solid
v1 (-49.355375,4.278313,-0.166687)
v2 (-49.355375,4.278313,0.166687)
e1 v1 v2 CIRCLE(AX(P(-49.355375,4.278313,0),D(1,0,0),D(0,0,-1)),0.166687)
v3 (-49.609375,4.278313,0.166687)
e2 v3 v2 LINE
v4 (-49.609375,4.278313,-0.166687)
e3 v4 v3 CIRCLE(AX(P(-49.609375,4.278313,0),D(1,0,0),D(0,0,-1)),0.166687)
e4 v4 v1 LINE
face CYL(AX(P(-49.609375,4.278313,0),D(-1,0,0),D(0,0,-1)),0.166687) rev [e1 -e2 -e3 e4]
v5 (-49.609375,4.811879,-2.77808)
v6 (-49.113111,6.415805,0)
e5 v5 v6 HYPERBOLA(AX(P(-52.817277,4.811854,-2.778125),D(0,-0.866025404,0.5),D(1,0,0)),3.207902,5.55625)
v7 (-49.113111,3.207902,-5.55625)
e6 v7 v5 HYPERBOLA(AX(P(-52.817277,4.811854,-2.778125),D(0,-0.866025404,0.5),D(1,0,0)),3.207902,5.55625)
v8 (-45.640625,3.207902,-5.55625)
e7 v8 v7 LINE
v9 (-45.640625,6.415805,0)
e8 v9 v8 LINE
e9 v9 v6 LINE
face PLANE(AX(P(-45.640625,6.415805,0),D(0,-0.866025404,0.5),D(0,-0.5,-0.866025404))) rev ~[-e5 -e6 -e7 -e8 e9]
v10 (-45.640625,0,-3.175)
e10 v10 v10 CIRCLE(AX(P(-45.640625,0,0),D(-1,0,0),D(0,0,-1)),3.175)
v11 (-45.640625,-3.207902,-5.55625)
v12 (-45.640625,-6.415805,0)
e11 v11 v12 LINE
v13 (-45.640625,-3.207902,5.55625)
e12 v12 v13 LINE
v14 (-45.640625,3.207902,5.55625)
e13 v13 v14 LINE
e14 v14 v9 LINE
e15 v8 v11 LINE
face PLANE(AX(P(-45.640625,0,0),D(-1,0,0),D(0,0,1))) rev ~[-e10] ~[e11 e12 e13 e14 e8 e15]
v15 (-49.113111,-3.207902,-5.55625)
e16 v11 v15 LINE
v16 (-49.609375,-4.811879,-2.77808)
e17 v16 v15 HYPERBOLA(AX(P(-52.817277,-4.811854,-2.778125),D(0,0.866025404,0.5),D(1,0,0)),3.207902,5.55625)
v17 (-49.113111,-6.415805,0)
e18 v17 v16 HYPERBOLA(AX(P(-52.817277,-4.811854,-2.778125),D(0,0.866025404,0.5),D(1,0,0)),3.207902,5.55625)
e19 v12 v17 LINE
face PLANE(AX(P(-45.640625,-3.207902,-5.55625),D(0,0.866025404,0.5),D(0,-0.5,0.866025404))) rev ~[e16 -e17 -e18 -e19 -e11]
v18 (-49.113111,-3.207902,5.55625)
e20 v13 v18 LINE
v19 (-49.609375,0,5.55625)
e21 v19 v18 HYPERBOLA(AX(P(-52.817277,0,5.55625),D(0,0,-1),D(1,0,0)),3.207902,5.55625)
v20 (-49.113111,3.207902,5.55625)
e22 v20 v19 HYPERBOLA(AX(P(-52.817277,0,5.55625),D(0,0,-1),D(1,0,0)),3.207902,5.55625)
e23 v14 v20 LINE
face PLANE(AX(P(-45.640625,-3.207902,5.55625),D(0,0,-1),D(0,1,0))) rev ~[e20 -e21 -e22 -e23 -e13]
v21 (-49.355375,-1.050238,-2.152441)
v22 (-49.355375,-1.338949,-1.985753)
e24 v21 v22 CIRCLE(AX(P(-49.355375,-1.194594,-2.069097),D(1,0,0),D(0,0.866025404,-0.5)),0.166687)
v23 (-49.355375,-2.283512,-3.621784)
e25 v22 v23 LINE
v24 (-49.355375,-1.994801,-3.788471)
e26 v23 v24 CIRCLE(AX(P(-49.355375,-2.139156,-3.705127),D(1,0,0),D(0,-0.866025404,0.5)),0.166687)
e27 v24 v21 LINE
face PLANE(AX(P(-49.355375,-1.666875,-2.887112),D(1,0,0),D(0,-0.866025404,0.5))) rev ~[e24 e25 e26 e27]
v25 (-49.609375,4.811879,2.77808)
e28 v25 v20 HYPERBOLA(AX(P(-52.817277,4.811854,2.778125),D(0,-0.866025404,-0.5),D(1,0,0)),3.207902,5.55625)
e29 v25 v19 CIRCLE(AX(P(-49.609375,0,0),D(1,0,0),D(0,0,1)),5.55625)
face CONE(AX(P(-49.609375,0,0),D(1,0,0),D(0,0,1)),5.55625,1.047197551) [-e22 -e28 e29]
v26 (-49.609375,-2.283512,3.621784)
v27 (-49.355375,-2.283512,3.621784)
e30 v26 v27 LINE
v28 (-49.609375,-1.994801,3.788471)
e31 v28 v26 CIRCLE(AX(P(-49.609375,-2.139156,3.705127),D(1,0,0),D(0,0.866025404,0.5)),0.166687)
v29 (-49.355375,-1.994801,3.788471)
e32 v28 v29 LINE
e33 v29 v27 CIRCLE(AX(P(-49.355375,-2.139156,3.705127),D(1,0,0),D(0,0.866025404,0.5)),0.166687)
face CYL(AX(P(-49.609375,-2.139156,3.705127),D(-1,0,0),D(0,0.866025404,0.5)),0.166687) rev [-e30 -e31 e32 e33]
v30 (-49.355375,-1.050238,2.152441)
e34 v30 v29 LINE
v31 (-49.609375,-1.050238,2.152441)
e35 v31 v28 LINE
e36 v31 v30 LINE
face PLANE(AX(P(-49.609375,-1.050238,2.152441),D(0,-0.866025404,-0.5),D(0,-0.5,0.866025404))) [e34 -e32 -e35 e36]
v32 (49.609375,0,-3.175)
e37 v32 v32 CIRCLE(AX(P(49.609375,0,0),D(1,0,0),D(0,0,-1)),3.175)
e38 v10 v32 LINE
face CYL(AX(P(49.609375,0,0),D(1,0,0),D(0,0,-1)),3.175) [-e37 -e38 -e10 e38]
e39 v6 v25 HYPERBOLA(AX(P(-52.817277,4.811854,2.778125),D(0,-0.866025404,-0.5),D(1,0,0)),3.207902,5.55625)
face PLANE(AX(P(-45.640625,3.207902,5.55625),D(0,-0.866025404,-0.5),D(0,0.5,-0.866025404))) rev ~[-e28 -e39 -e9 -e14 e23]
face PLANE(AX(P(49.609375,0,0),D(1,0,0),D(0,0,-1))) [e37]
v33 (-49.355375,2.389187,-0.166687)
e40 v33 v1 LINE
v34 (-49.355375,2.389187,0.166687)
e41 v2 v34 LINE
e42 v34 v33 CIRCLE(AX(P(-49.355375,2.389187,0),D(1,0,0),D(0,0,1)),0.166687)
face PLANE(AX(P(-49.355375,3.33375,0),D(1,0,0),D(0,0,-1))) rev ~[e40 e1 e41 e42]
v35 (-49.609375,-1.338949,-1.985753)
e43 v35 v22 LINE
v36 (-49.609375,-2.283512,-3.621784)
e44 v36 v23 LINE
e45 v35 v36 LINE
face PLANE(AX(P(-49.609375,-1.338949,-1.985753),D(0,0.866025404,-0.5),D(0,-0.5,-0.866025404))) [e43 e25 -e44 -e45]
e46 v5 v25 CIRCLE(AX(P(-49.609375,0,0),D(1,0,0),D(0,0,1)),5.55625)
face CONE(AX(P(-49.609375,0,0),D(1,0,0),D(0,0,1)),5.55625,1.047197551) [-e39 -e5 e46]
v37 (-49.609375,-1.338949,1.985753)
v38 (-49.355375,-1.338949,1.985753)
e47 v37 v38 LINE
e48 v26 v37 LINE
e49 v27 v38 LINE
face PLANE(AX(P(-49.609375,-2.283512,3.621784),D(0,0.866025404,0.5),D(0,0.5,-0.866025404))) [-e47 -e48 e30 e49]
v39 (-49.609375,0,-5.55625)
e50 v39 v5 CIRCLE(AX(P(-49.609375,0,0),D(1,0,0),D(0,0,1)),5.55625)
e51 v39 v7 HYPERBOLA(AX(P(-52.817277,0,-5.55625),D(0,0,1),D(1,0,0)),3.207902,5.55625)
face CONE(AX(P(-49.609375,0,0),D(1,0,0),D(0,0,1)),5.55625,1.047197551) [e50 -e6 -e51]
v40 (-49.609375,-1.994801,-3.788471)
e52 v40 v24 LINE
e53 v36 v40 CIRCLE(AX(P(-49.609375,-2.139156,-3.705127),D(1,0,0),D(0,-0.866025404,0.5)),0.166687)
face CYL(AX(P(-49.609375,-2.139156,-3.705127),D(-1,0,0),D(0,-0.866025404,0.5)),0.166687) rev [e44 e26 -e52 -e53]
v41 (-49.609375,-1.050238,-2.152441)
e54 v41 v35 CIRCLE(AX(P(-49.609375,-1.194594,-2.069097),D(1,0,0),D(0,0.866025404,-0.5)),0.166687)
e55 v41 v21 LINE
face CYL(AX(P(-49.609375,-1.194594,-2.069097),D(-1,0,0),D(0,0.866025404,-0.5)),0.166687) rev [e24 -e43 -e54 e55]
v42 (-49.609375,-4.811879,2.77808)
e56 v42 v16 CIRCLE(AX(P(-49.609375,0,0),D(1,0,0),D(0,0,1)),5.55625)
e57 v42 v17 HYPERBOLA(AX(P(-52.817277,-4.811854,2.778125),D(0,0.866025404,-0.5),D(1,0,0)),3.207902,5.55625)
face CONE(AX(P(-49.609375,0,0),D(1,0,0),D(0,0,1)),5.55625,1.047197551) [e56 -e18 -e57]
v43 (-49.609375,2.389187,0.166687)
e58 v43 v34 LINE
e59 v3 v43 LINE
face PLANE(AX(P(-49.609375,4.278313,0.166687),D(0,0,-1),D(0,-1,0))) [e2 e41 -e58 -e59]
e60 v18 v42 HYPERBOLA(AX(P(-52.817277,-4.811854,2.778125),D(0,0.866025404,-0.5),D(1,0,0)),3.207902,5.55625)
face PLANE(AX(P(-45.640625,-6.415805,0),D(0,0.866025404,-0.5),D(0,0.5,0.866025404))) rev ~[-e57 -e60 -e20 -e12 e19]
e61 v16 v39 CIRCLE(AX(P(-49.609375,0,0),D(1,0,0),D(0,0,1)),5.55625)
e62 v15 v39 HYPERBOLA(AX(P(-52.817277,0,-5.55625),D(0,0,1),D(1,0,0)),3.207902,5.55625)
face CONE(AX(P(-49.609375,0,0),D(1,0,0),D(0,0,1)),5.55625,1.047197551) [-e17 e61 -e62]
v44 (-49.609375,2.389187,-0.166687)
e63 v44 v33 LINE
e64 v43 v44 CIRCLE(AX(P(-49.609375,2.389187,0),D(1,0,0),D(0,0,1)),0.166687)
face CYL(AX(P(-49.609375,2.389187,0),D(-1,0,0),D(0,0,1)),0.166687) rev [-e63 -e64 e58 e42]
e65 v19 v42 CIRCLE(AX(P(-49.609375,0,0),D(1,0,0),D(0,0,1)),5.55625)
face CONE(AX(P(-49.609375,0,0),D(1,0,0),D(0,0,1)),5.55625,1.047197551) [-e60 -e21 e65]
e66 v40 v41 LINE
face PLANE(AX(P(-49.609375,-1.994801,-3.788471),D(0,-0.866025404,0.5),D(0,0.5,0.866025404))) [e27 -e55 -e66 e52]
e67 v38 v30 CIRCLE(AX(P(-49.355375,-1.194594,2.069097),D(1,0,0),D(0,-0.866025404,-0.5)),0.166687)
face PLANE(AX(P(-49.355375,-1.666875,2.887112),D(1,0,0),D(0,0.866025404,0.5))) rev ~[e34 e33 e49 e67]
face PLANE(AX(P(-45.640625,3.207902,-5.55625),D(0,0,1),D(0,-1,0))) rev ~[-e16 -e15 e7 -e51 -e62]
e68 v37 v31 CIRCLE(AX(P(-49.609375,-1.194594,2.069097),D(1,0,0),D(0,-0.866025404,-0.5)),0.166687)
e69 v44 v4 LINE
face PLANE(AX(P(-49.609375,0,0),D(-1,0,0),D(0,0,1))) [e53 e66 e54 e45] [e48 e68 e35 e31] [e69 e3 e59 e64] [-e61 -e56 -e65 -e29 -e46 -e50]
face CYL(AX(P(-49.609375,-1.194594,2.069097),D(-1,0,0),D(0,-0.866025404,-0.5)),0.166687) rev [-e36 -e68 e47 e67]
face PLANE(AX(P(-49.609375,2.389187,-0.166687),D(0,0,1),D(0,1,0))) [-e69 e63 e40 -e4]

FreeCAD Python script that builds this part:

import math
import FreeCAD as App
import Part
import Sketcher
from FreeCAD import Vector
Q = App.Units.Quantity

doc = App.newDocument("Part")
body = doc.addObject("PartDesign::Body", "Body")

# Sketch on YZ plane
sketch1 = body.newObject("Sketcher::SketchObject", "Sketch")
sketch1.AttachmentSupport = (doc.getObject("YZ_Plane"), [""])
sketch1.MapMode = "FlatFace"
sketch1.AttachmentOffset = App.Placement(Vector(0, 0, 1.953125 * 25.4), App.Rotation())
sketch1.addGeometry(Part.Circle(Vector(0, 0, 0), Vector(0, 0, 1), 3.175), False)
sketch1.addConstraint([
    Sketcher.Constraint("Coincident", 0, 3, -1, 1),
    Sketcher.Constraint("Diameter", 0, Q("0.25 in")),
])
pad1 = body.newObject("PartDesign::Pad", "Pad")
pad1.Profile = sketch1
pad1.Length = Q("3.75 in")
pad1.Reversed = True

# Sketch on XY plane
sketch2 = body.newObject("Sketcher::SketchObject", "Sketch001")
sketch2.AttachmentSupport = (doc.getObject("XY_Plane"), [""])
sketch2.MapMode = "FlatFace"
sketch2.addGeometry([
    Part.LineSegment(Vector(-45.640625, 3.175, 0), Vector(-45.640625, 0, 0)),
    Part.LineSegment(Vector(-45.640625, 0, 0), Vector(33.734375, 0, 0)),
    Part.LineSegment(Vector(33.734375, 0, 0), Vector(30.559375, 3.175, 0)),
    Part.LineSegment(Vector(30.559375, 3.175, 0), Vector(-45.640625, 3.175, 0)),
], False)
sketch2.addConstraint([
    Sketcher.Constraint("Coincident", 0, 2, 1, 1),
    Sketcher.Constraint("Coincident", 1, 2, 2, 1),
    Sketcher.Constraint("Coincident", 2, 2, 3, 1),
    Sketcher.Constraint("Coincident", 3, 2, 0, 1),
    Sketcher.Constraint("Vertical", 0),
    Sketcher.Constraint("Horizontal", 1),
    Sketcher.Constraint("Horizontal", 3),
    Sketcher.Constraint("PointOnObject", 0, 2, -1),
    Sketcher.Constraint("DistanceX", 3, 2, 3, 1, Q("3 in")),
    Sketcher.Constraint("Angle", 2, Q("135 deg")),
    Sketcher.Constraint("DistanceX", 1, 1, 1, 2, Q("3.125 in")),
    Sketcher.Constraint("DistanceX", 0, 2, -1, 1, Q("1.796875 in")),
])
revolution = body.newObject("PartDesign::Revolution", "Revolution")
revolution.Profile = sketch2
revolution.ReferenceAxis = (sketch2, ["H_Axis"])
revolution.Angle = 360

# Sketch on YZ plane
sketch3 = body.newObject("Sketcher::SketchObject", "Sketch002")
sketch3.AttachmentSupport = (doc.getObject("YZ_Plane"), [""])
sketch3.MapMode = "FlatFace"
sketch3.AttachmentOffset = App.Placement(Vector(0, 0, -1.796875 * 25.4), App.Rotation())
sketch3.addGeometry([
    Part.LineSegment(Vector(3.207902, 5.55625, 0), Vector(6.415805, 0, 0)),  # 0
    Part.LineSegment(Vector(6.415805, 0, 0), Vector(3.207902, -5.55625, 0)),  # 1
    Part.LineSegment(Vector(3.207902, -5.55625, 0), Vector(-3.207902, -5.55625, 0)),  # 2
    Part.LineSegment(Vector(-3.207902, -5.55625, 0), Vector(-6.415805, 0, 0)),  # 3
    Part.LineSegment(Vector(-6.415805, 0, 0), Vector(-3.207902, 5.55625, 0)),  # 4
    Part.LineSegment(Vector(-3.207902, 5.55625, 0), Vector(3.207902, 5.55625, 0)),  # 5
], False)
sketch3.addConstraint([
    Sketcher.Constraint("Coincident", 0, 2, 1, 1),
    Sketcher.Constraint("Coincident", 1, 2, 2, 1),
    Sketcher.Constraint("Coincident", 2, 2, 3, 1),
    Sketcher.Constraint("Coincident", 3, 2, 4, 1),
    Sketcher.Constraint("Coincident", 4, 2, 5, 1),
    Sketcher.Constraint("Coincident", 5, 2, 0, 1),
    Sketcher.Constraint("Horizontal", 2),
    Sketcher.Constraint("Horizontal", 5),
    Sketcher.Constraint("Symmetric", 0, 2, 3, 2, -1, 1),
    Sketcher.Constraint("Symmetric", 1, 2, 4, 2, -1, 1),
    Sketcher.Constraint("PointOnObject", 0, 2, -1),
    Sketcher.Constraint("Parallel", 0, 3),
    Sketcher.Constraint("Vertical", 2, 2, 4, 2),
    Sketcher.Constraint("Angle", 0, Q("-60 deg")),
    Sketcher.Constraint("DistanceY", 1, 2, -1, 1, Q("0.21875 in")),
    Sketcher.Constraint("DistanceX", 2, 2, 2, 1, Q("6.415805 mm")),
])
pad2 = body.newObject("PartDesign::Pad", "Pad001")
pad2.Profile = sketch3
pad2.Length = Q("0.15625 in")
pad2.Reversed = True

# Sketch on YZ plane
sketch4 = body.newObject("Sketcher::SketchObject", "Sketch003")
sketch4.AttachmentSupport = (doc.getObject("YZ_Plane"), [""])
sketch4.MapMode = "FlatFace"
sketch4.AttachmentOffset = App.Placement(Vector(0, 0, -1.953125 * 25.4), App.Rotation())
sketch4.addGeometry([
    Part.LineSegment(Vector(191.066, -190.206, 0), Vector(-191.066, -190.206, 0)),  # 0
    Part.LineSegment(Vector(-191.066, -190.206, 0), Vector(-191.066, 190.206, 0)),  # 1
    Part.LineSegment(Vector(-191.066, 190.206, 0), Vector(191.066, 190.206, 0)),  # 2
    Part.LineSegment(Vector(191.066, 190.206, 0), Vector(191.066, -190.206, 0)),  # 3
    Part.Circle(Vector(0, 0, 0), Vector(0, 0, 1), 5.55625),  # 4
], False)
sketch4.addConstraint([
    Sketcher.Constraint("Coincident", 0, 2, 1, 1),
    Sketcher.Constraint("Coincident", 1, 2, 2, 1),
    Sketcher.Constraint("Coincident", 2, 2, 3, 1),
    Sketcher.Constraint("Coincident", 3, 2, 0, 1),
    Sketcher.Constraint("Horizontal", 0),
    Sketcher.Constraint("Vertical", 1),
    Sketcher.Constraint("Horizontal", 2),
    Sketcher.Constraint("Vertical", 3),
    Sketcher.Constraint("Coincident", 4, 3, -1, 1),
    Sketcher.Constraint("Symmetric", 0, 2, 2, 2, -1, 1),
    Sketcher.Constraint("Diameter", 4, Q("0.4375 in")),
    Sketcher.Constraint("DistanceX", 0, 2, 0, 1, Q("382.132 mm")),
    Sketcher.Constraint("DistanceY", 1, 1, 1, 2, Q("380.412 mm")),
])
pocket1 = body.newObject("PartDesign::Pocket", "Pocket")
pocket1.Profile = sketch4
pocket1.Length = 100.21875
pocket1.Reversed = True
pocket1.TaperAngle = 60

# Sketch on YZ plane
sketch5 = body.newObject("Sketcher::SketchObject", "Sketch004")
sketch5.AttachmentSupport = (doc.getObject("YZ_Plane"), [""])
sketch5.MapMode = "FlatFace"
sketch5.AttachmentOffset = App.Placement(Vector(0, 0, -1.953125 * 25.4), App.Rotation())
sketch5.addGeometry([
    Part.LineSegment(Vector(2.389187, 0.166687, 0), Vector(4.278313, 0.166687, 0)),
    Part.ArcOfCircle(Part.Circle(Vector(4.278313, 0, 0), Vector(0, 0, 1), 0.166687), math.radians(-90), math.radians(90)),
    Part.LineSegment(Vector(4.278313, -0.166687, 0), Vector(2.389187, -0.166687, 0)),
    Part.ArcOfCircle(Part.Circle(Vector(2.389187, 0, 0), Vector(0, 0, 1), 0.166687), math.radians(90), math.radians(270)),
], False)
sketch5.addConstraint([
    Sketcher.Constraint("Tangent", 0, 2, 1, 2),
    Sketcher.Constraint("Tangent", 1, 1, 2, 1),
    Sketcher.Constraint("Tangent", 2, 2, 3, 2),
    Sketcher.Constraint("Tangent", 3, 1, 0, 1),
    Sketcher.Constraint("Horizontal", 0),
    Sketcher.Constraint("Horizontal", 2),
    Sketcher.Constraint("PointOnObject", 1, 3, -1),
    Sketcher.Constraint("Radius", 1, Q("0.166687 mm")),
    Sketcher.Constraint("DistanceX", 0, 1, 0, 2, Q("1.889125 mm")),
    Sketcher.Constraint("DistanceX", -1, 1, 1, 3, Q("4.278313 mm")),
])
pocket2 = body.newObject("PartDesign::Pocket", "Pocket001")
pocket2.Profile = sketch5
pocket2.Length = Q("0.01 in")
pocket2.Reversed = True
doc.recompute()

polarpattern = body.newObject("PartDesign::PolarPattern", "PolarPattern")
polarpattern.Originals = [pocket2]
polarpattern.Axis = (doc.getObject("X_Axis"), [""])
polarpattern.Angle = 360
polarpattern.Occurrences = 3
body.Tip = polarpattern

doc.recompute()
